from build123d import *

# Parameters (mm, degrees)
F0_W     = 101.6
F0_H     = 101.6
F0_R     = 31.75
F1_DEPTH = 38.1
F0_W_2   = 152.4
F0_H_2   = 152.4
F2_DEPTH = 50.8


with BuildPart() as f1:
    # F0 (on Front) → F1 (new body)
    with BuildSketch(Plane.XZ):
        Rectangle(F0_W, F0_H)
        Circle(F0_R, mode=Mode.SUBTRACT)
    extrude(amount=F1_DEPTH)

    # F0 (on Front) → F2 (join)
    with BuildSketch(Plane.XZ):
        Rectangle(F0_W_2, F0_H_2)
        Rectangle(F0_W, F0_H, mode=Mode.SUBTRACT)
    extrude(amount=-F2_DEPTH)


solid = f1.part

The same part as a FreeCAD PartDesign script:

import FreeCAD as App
import Part
import Sketcher
Q = App.Units.Quantity


def add_polygon(sketch, points):
    """Adds a closed chain of lines whose ends are joined by coincident constraints."""
    first, n = sketch.GeometryCount, len(points)
    for a, b in zip(points, points[1:] + points[:1]):
        sketch.addGeometry(Part.LineSegment(App.Vector(*a, 0), App.Vector(*b, 0)), False)
    for i in range(n):
        sketch.addConstraint(Sketcher.Constraint("Coincident", first + i, 2, first + (i + 1) % n, 1))

doc = App.newDocument("Part")
body = doc.addObject("PartDesign::Body", "Body")
body.AllowCompound = True

sketch1 = body.newObject("Sketcher::SketchObject", "Sketch")
sketch1.AttachmentSupport = (doc.getObject("XZ_Plane"), [""])
sketch1.MapMode = "FlatFace"
add_polygon(sketch1, [(-51, 51), (-51, -51), (51, -51), (51, 51)])
sketch1.addGeometry(Part.Circle(App.Vector(0, 0, 0), App.Vector(0, 0, 1), 32), False)
sketch1.addConstraint([
    Sketcher.Constraint("Vertical", 0),
    Sketcher.Constraint("Horizontal", 1),
    Sketcher.Constraint("Vertical", 2),
    Sketcher.Constraint("Horizontal", 3),
    Sketcher.Constraint("Coincident", 4, 3, -1, 1),
    Sketcher.Constraint("Symmetric", 0, 2, 2, 2, -1, 1),
    Sketcher.Constraint("Equal", 3, 0),
    Sketcher.Constraint("Diameter", 4, Q("2.5 in")),
    Sketcher.Constraint("DistanceX", 1, 1, 1, 2, Q("4 in")),
])
pad1 = body.newObject("PartDesign::Pad", "Pad")
pad1.Profile = sketch1
pad1.Length = Q("1.5 in")

sketch2 = body.newObject("Sketcher::SketchObject", "Sketch001")
sketch2.AttachmentSupport = (doc.getObject("XZ_Plane"), [""])
sketch2.MapMode = "FlatFace"
add_polygon(sketch2, [(-76, 76), (-76, -76), (76, -76), (76, 76)])
add_polygon(sketch2, [(51, -51), (-51, -51), (-51, 51), (51, 51)])
sketch2.addConstraint([
    Sketcher.Constraint("Vertical", 0),
    Sketcher.Constraint("Horizontal", 1),
    Sketcher.Constraint("Vertical", 2),
    Sketcher.Constraint("Horizontal", 3),
    Sketcher.Constraint("Horizontal", 4),
    Sketcher.Constraint("Vertical", 5),
    Sketcher.Constraint("Horizontal", 6),
    Sketcher.Constraint("Vertical", 7),
    Sketcher.Constraint("Symmetric", 0, 2, 2, 2, -1, 1),
    Sketcher.Constraint("Symmetric", 4, 2, 6, 2, -1, 1),
    Sketcher.Constraint("Equal", 3, 0),
    Sketcher.Constraint("Equal", 6, 5),
    Sketcher.Constraint("DistanceX", 1, 1, 1, 2, Q("6 in")),
    Sketcher.Constraint("DistanceX", 4, 2, 4, 1, Q("4 in")),
])
pad2 = body.newObject("PartDesign::Pad", "Pad001")
pad2.Profile = sketch2
pad2.Length = Q("2 in")
pad2.Reversed = True

doc.recompute()
